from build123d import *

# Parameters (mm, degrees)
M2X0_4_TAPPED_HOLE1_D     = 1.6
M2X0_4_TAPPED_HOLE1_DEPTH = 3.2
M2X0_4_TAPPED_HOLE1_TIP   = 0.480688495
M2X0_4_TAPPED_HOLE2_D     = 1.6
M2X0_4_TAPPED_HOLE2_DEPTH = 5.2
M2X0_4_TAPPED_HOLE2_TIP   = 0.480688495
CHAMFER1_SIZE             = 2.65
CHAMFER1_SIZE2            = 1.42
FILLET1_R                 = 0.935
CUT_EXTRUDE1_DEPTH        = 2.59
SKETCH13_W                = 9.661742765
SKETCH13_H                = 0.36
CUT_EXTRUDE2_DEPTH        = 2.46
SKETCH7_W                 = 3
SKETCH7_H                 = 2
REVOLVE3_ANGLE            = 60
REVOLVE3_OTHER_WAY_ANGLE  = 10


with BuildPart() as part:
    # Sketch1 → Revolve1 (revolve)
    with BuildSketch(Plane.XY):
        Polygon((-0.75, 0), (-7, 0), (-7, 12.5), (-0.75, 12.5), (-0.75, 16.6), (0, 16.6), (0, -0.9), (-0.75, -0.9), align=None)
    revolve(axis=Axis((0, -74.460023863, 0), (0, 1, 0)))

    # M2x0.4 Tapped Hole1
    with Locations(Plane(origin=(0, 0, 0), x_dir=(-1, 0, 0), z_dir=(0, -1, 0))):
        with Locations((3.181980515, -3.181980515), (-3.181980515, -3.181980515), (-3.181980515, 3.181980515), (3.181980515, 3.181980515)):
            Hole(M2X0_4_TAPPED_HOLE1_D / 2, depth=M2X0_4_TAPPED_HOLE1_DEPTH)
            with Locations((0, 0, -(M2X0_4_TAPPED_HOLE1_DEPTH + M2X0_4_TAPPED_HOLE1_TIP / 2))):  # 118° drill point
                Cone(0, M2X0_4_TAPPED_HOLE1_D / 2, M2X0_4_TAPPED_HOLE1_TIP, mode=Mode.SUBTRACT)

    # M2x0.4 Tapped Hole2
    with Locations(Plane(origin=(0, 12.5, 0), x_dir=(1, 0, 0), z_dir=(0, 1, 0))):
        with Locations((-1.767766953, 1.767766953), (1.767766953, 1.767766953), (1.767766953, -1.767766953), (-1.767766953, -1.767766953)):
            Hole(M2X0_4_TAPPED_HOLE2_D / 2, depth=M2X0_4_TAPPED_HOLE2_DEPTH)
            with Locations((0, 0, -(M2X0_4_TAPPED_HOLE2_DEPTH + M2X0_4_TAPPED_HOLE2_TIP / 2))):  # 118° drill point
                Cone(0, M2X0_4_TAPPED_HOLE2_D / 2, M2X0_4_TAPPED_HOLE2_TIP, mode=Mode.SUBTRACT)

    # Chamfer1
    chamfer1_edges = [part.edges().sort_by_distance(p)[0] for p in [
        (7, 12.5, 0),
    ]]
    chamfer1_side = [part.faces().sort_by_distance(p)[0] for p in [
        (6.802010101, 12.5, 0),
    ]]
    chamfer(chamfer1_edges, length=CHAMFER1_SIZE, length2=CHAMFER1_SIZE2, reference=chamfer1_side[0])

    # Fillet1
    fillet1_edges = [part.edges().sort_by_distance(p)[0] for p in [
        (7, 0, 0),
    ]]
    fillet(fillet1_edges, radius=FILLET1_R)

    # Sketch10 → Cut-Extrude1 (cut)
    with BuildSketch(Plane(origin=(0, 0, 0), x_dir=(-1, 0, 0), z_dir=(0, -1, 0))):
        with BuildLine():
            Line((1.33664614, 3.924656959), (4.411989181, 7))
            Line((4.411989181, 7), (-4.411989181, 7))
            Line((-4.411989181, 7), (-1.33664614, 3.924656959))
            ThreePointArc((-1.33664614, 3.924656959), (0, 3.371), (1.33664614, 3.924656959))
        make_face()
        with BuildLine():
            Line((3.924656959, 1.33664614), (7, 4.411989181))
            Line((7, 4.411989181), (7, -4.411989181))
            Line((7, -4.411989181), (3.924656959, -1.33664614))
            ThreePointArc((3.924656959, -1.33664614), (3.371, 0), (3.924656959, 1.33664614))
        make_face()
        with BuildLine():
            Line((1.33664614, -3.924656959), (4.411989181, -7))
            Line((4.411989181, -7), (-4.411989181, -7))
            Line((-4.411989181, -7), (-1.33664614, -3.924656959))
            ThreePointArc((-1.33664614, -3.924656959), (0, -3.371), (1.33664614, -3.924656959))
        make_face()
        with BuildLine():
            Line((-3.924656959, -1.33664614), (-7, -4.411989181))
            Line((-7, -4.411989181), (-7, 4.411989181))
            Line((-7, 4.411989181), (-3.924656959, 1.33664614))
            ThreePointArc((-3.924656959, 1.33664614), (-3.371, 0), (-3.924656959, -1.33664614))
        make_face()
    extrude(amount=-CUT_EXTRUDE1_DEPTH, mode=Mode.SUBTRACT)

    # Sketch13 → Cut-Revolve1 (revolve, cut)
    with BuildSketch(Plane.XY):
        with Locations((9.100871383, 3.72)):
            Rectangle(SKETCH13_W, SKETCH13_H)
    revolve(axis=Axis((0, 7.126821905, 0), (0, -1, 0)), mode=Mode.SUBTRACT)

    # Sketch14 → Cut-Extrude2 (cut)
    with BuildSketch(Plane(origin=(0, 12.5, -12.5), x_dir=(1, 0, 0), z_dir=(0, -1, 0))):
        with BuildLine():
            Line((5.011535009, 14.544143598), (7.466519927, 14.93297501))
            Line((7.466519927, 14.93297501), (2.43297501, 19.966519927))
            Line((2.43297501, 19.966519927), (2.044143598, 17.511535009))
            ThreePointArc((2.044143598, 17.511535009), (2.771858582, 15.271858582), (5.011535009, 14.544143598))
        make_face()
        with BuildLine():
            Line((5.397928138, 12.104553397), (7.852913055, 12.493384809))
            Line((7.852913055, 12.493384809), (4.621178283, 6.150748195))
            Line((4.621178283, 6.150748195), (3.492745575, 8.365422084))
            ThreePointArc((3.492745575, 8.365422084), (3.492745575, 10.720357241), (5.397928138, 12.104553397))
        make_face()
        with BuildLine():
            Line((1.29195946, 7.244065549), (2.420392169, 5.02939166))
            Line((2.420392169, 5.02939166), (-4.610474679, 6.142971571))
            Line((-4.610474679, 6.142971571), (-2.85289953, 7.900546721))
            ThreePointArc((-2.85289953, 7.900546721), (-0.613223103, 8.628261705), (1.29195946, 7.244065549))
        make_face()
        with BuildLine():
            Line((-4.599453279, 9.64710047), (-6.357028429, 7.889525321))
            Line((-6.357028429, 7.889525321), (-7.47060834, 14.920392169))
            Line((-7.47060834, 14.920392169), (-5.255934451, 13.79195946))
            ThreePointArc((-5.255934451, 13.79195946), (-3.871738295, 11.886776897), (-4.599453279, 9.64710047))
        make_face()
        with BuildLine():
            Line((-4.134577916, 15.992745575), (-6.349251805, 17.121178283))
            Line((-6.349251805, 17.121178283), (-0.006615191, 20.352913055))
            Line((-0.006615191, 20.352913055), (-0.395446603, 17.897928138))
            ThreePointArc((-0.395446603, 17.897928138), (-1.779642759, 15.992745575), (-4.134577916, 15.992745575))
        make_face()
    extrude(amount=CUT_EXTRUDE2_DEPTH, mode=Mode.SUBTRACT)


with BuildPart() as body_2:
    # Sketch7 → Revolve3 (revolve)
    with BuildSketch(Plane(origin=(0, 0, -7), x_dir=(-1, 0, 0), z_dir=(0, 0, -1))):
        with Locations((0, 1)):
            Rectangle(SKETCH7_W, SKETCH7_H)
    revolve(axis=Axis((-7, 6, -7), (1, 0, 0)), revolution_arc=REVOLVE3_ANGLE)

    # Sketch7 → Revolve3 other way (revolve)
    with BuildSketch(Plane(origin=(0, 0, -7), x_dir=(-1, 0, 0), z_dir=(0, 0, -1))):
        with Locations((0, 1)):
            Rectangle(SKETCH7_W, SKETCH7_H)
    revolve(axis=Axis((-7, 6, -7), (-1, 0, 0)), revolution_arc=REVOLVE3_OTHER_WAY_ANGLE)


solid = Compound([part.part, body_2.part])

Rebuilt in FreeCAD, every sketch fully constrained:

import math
import FreeCAD as App
import Part
import Sketcher

V = App.Vector
Q = App.Units.Quantity


def edges_at(feature, points):
    """Names of the edges that pass closest to the given points."""
    edges = feature.Shape.Edges
    near = lambda p: min(range(len(edges)), key=lambda i: edges[i].distToShape(Part.Vertex(*p))[0])
    return sorted({f"Edge{near(p) + 1}" for p in points})


def add_polygon(sketch, points):
    """Adds a closed chain of lines whose ends are joined by coincident constraints."""
    first, n = sketch.GeometryCount, len(points)
    for a, b in zip(points, points[1:] + points[:1]):
        sketch.addGeometry(Part.LineSegment(App.Vector(*a, 0), App.Vector(*b, 0)), False)
    for i in range(n):
        sketch.addConstraint(Sketcher.Constraint("Coincident", first + i, 2, first + (i + 1) % n, 1))

doc = App.newDocument("Part")
body = doc.addObject("PartDesign::Body", "Body")

# Sketch on XY plane
sketch1 = body.newObject("Sketcher::SketchObject", "Sketch")
sketch1.AttachmentSupport = (doc.getObject("XY_Plane"), [""])
sketch1.MapMode = "FlatFace"
add_polygon(sketch1, [(-7, 0), (-0.8, 0), (-0.8, -0.9), (0, -0.9), (0, 16.6), (-0.8, 16.6), (-0.8, 12.5), (-7, 12.5)])  # lines 0-7
sketch1.addConstraint(Sketcher.Constraint("Horizontal", 0))
sketch1.addConstraint(Sketcher.Constraint("Vertical", 1))
sketch1.addConstraint(Sketcher.Constraint("Horizontal", 2))
sketch1.addConstraint(Sketcher.Constraint("Vertical", 3))
sketch1.addConstraint(Sketcher.Constraint("Horizontal", 4))
sketch1.addConstraint(Sketcher.Constraint("Vertical", 5))
sketch1.addConstraint(Sketcher.Constraint("Horizontal", 6))
sketch1.addConstraint(Sketcher.Constraint("Vertical", 7))
sketch1.addConstraint(Sketcher.Constraint("PointOnObject", 0, 2, -1))
sketch1.addConstraint(Sketcher.Constraint("PointOnObject", 2, 2, -2))
sketch1.addConstraint(Sketcher.Constraint("Vertical", 1, 2, 4, 2))
sketch1.addConstraint(Sketcher.Constraint("DistanceY", 1, 2, 1, 1, Q("0.9 mm")))
sketch1.addConstraint(Sketcher.Constraint("DistanceY", 3, 1, 3, 2, Q("17.5 mm")))
sketch1.addConstraint(Sketcher.Constraint("DistanceY", 5, 2, 5, 1, Q("4.1 mm")))
sketch1.addConstraint(Sketcher.Constraint("DistanceX", 6, 2, -1, 1, Q("7 mm")))
sketch1.addConstraint(Sketcher.Constraint("DistanceX", 0, 1, 0, 2, Q("6.25 mm")))
revolution = body.newObject("PartDesign::Revolution", "Revolution")
revolution.Profile = sketch1
revolution.ReferenceAxis = (sketch1, ["V_Axis"])
revolution.Angle = 360

# Sketch on XZ plane
sketch2 = body.newObject("Sketcher::SketchObject", "Sketch001")
sketch2.AttachmentSupport = (doc.getObject("XZ_Plane"), [""])
sketch2.MapMode = "FlatFace"
sketch2.addGeometry(Part.Circle(V(-3.2, 3.2, 0), V(0, 0, 1), 0.8), False)
sketch2.addGeometry(Part.Circle(V(3.2, 3.2, 0), V(0, 0, 1), 0.8), False)
sketch2.addGeometry(Part.Circle(V(3.2, -3.2, 0), V(0, 0, 1), 0.8), False)
sketch2.addGeometry(Part.Circle(V(-3.2, -3.2, 0), V(0, 0, 1), 0.8), False)
sketch2.addConstraint(Sketcher.Constraint("Equal", 0, 1))
sketch2.addConstraint(Sketcher.Constraint("Equal", 1, 2))
sketch2.addConstraint(Sketcher.Constraint("Equal", 2, 3))
sketch2.addConstraint(Sketcher.Constraint("Symmetric", 0, 3, 2, 3, -1, 1))
sketch2.addConstraint(Sketcher.Constraint("Symmetric", 1, 3, 3, 3, -1, 1))
sketch2.addConstraint(Sketcher.Constraint("Symmetric", 0, 3, 1, 3, -2))
sketch2.addConstraint(Sketcher.Constraint("Diameter", 0, Q("1.6 mm")))
sketch2.addConstraint(Sketcher.Constraint("DistanceX", 0, 3, -1, 1, Q("3.181981 mm")))
sketch2.addConstraint(Sketcher.Constraint("DistanceY", -1, 1, 0, 3, Q("3.181981 mm")))
doc.recompute()
hole = body.newObject("PartDesign::Hole", "Hole")
hole.Profile = sketch2
hole.ThreadType = "None"
hole.Diameter = 1.6
hole.DepthType = "Dimension"
hole.Depth = 3.2
hole.DrillPoint = "Angled"
hole.DrillPointAngle = 118

# Sketch on XZ plane
sketch3 = body.newObject("Sketcher::SketchObject", "Sketch002")
sketch3.AttachmentSupport = (doc.getObject("XZ_Plane"), [""])
sketch3.MapMode = "FlatFace"
sketch3.AttachmentOffset = App.Placement(V(0, 0, -12.5), App.Rotation())
sketch3.addGeometry(Part.Circle(V(-1.8, -1.8, 0), V(0, 0, 1), 0.8), False)
sketch3.addGeometry(Part.Circle(V(1.8, -1.8, 0), V(0, 0, 1), 0.8), False)
sketch3.addGeometry(Part.Circle(V(1.8, 1.8, 0), V(0, 0, 1), 0.8), False)
sketch3.addGeometry(Part.Circle(V(-1.8, 1.8, 0), V(0, 0, 1), 0.8), False)
sketch3.addConstraint(Sketcher.Constraint("Equal", 0, 1))
sketch3.addConstraint(Sketcher.Constraint("Equal", 1, 2))
sketch3.addConstraint(Sketcher.Constraint("Equal", 2, 3))
sketch3.addConstraint(Sketcher.Constraint("Symmetric", 0, 3, 2, 3, -1, 1))
sketch3.addConstraint(Sketcher.Constraint("Symmetric", 1, 3, 3, 3, -1, 1))
sketch3.addConstraint(Sketcher.Constraint("Symmetric", 0, 3, 1, 3, -2))
sketch3.addConstraint(Sketcher.Constraint("Diameter", 0, Q("1.6 mm")))
sketch3.addConstraint(Sketcher.Constraint("DistanceX", 0, 3, -1, 1, Q("1.767767 mm")))
sketch3.addConstraint(Sketcher.Constraint("DistanceY", 0, 3, -1, 1, Q("1.767767 mm")))
doc.recompute()
hole2 = body.newObject("PartDesign::Hole", "Hole001")
hole2.Profile = sketch3
hole2.ThreadType = "None"
hole2.Diameter = 1.6
hole2.DepthType = "Dimension"
hole2.Depth = 5.2
hole2.DrillPoint = "Angled"
hole2.DrillPointAngle = 118
hole2.Reversed = True
doc.recompute()

chamfer = body.newObject("PartDesign::Chamfer", "Chamfer")
chamfer.Base = (hole2, edges_at(hole2, [(7, 12.5, 0)]))
chamfer.ChamferType = "Two distances"
chamfer.Size = 2.65
chamfer.Size2 = 1.42
chamfer.FlipDirection = True
doc.recompute()

fillet = body.newObject("PartDesign::Fillet", "Fillet")
fillet.Base = (chamfer, edges_at(chamfer, [(7, 0, 0)]))
fillet.Radius = 0.935

# Sketch on XZ plane
sketch4 = body.newObject("Sketcher::SketchObject", "Sketch003")
sketch4.AttachmentSupport = (doc.getObject("XZ_Plane"), [""])
sketch4.MapMode = "FlatFace"
sketch4.addGeometry(Part.LineSegment(V(-1.3, -3.9, 0), V(-4.4, -7, 0)), False)
sketch4.addGeometry(Part.LineSegment(V(-4.4, -7, 0), V(4.4, -7, 0)), False)
sketch4.addGeometry(Part.LineSegment(V(4.4, -7, 0), V(1.3, -3.9, 0)), False)
sketch4.addGeometry(Part.ArcOfCircle(Part.Circle(V(0, -5.3, 0), V(0, 0, 1), 1.9), math.radians(45), math.radians(135)), False)
sketch4.addGeometry(Part.LineSegment(V(-7, -4.4, 0), V(-3.9, -1.3, 0)), False)
sketch4.addGeometry(Part.ArcOfCircle(Part.Circle(V(-5.3, 0, 0), V(0, 0, 1), 1.9), math.radians(-45), math.radians(45)), False)
sketch4.addGeometry(Part.LineSegment(V(-3.9, 1.3, 0), V(-7, 4.4, 0)), False)
sketch4.addGeometry(Part.LineSegment(V(-7, 4.4, 0), V(-7, -4.4, 0)), False)
sketch4.addGeometry(Part.LineSegment(V(-4.4, 7, 0), V(-1.3, 3.9, 0)), False)
sketch4.addGeometry(Part.ArcOfCircle(Part.Circle(V(0, 5.3, 0), V(0, 0, 1), 1.9), math.radians(-135), math.radians(-45)), False)
sketch4.addGeometry(Part.LineSegment(V(1.3, 3.9, 0), V(4.4, 7, 0)), False)
sketch4.addGeometry(Part.LineSegment(V(4.4, 7, 0), V(-4.4, 7, 0)), False)
sketch4.addGeometry(Part.LineSegment(V(7, 4.4, 0), V(3.9, 1.3, 0)), False)
sketch4.addGeometry(Part.ArcOfCircle(Part.Circle(V(5.3, 0, 0), V(0, 0, 1), 1.9), math.radians(135), math.radians(225)), False)
sketch4.addGeometry(Part.LineSegment(V(3.9, -1.3, 0), V(7, -4.4, 0)), False)
sketch4.addGeometry(Part.LineSegment(V(7, -4.4, 0), V(7, 4.4, 0)), False)
sketch4.addConstraint(Sketcher.Constraint("Coincident", 0, 2, 1, 1))
sketch4.addConstraint(Sketcher.Constraint("Coincident", 1, 2, 2, 1))
sketch4.addConstraint(Sketcher.Constraint("Tangent", 2, 2, 3, 1))
sketch4.addConstraint(Sketcher.Constraint("Tangent", 3, 2, 0, 1))
sketch4.addConstraint(Sketcher.Constraint("Tangent", 4, 2, 5, 1))
sketch4.addConstraint(Sketcher.Constraint("Tangent", 5, 2, 6, 1))
sketch4.addConstraint(Sketcher.Constraint("Coincident", 6, 2, 7, 1))
sketch4.addConstraint(Sketcher.Constraint("Coincident", 7, 2, 4, 1))
sketch4.addConstraint(Sketcher.Constraint("Tangent", 8, 2, 9, 1))
sketch4.addConstraint(Sketcher.Constraint("Tangent", 9, 2, 10, 1))
sketch4.addConstraint(Sketcher.Constraint("Coincident", 10, 2, 11, 1))
sketch4.addConstraint(Sketcher.Constraint("Coincident", 11, 2, 8, 1))
sketch4.addConstraint(Sketcher.Constraint("Tangent", 12, 2, 13, 1))
sketch4.addConstraint(Sketcher.Constraint("Tangent", 13, 2, 14, 1))
sketch4.addConstraint(Sketcher.Constraint("Coincident", 14, 2, 15, 1))
sketch4.addConstraint(Sketcher.Constraint("Coincident", 15, 2, 12, 1))
sketch4.addConstraint(Sketcher.Constraint("Horizontal", 1))
sketch4.addConstraint(Sketcher.Constraint("Vertical", 7))
sketch4.addConstraint(Sketcher.Constraint("Horizontal", 11))
sketch4.addConstraint(Sketcher.Constraint("Vertical", 15))
sketch4.addConstraint(Sketcher.Constraint("Equal", 3, 5))
sketch4.addConstraint(Sketcher.Constraint("Equal", 5, 9))
sketch4.addConstraint(Sketcher.Constraint("Equal", 9, 13))
sketch4.addConstraint(Sketcher.Constraint("Symmetric", 3, 3, 9, 3, -1, 1))
sketch4.addConstraint(Sketcher.Constraint("Symmetric", 5, 3, 13, 3, -1, 1))
sketch4.addConstraint(Sketcher.Constraint("Symmetric", 0, 2, 10, 2, -1, 1))
sketch4.addConstraint(Sketcher.Constraint("Symmetric", 6, 2, 14, 2, -1, 1))
sketch4.addConstraint(Sketcher.Constraint("Symmetric", 2, 2, 3, 2, -2))
sketch4.addConstraint(Sketcher.Constraint("Symmetric", 5, 2, 12, 2, -2))
sketch4.addConstraint(Sketcher.Constraint("Perpendicular", 0, 2))
sketch4.addConstraint(Sketcher.Constraint("Perpendicular", 2, 4))
sketch4.addConstraint(Sketcher.Constraint("Perpendicular", 4, 6))
sketch4.addConstraint(Sketcher.Constraint("Parallel", 6, 8))
sketch4.addConstraint(Sketcher.Constraint("Equal", 11, 7))
sketch4.addConstraint(Sketcher.Constraint("DistanceY", 0, 2, -1, 1, Q("7 mm")))
sketch4.addConstraint(Sketcher.Constraint("DistanceX", 6, 2, -1, 1, Q("7 mm")))
sketch4.addConstraint(Sketcher.Constraint("Radius", 3, Q("1.890303 mm")))
sketch4.addConstraint(Sketcher.Constraint("DistanceX", 1, 1, 1, 2, Q("8.823978 mm")))
pocket1 = body.newObject("PartDesign::Pocket", "Pocket")
pocket1.Profile = sketch4
pocket1.Length = 2.59

# Sketch on XY plane
sketch5 = body.newObject("Sketcher::SketchObject", "Sketch004")
sketch5.AttachmentSupport = (doc.getObject("XY_Plane"), [""])
sketch5.MapMode = "FlatFace"
add_polygon(sketch5, [(4.27, 3.9), (4.27, 3.54), (13.93, 3.54), (13.93, 3.9)])  # lines 0-3
sketch5.addConstraint(Sketcher.Constraint("Vertical", 0))
sketch5.addConstraint(Sketcher.Constraint("Horizontal", 1))
sketch5.addConstraint(Sketcher.Constraint("Vertical", 2))
sketch5.addConstraint(Sketcher.Constraint("Horizontal", 3))
sketch5.addConstraint(Sketcher.Constraint("DistanceY", 0, 2, 0, 1, Q("0.36 mm")))
sketch5.addConstraint(Sketcher.Constraint("DistanceY", -1, 1, 2, 2, Q("3.9 mm")))
sketch5.addConstraint(Sketcher.Constraint("DistanceX", -1, 1, 0, 2, Q("4.27 mm")))
sketch5.addConstraint(Sketcher.Constraint("DistanceX", 1, 1, 1, 2, Q("9.661743 mm")))
groove = body.newObject("PartDesign::Groove", "Groove")
groove.Profile = sketch5
groove.ReferenceAxis = (sketch5, ["V_Axis"])
groove.Angle = 360

# Sketch on XZ plane
sketch6 = body.newObject("Sketcher::SketchObject", "Sketch005")
sketch6.AttachmentSupport = (doc.getObject("XZ_Plane"), [""])
sketch6.MapMode = "FlatFace"
sketch6.AttachmentOffset = App.Placement(V(0, 0, -12.5), App.Rotation())
sketch6.addGeometry(Part.LineSegment(V(5, 2, 0), V(7.5, 2.4, 0)), False)
sketch6.addGeometry(Part.LineSegment(V(7.5, 2.4, 0), V(2.4, 7.5, 0)), False)
sketch6.addGeometry(Part.LineSegment(V(2.4, 7.5, 0), V(2, 5, 0)), False)
sketch6.addGeometry(Part.ArcOfCircle(Part.Circle(V(4.6, 4.6, 0), V(0, 0, 1), 2.6), math.radians(171), math.radians(279)), False)
sketch6.addGeometry(Part.LineSegment(V(7.9, 0, 0), V(5.4, -0.4, 0)), False)
sketch6.addGeometry(Part.ArcOfCircle(Part.Circle(V(5.8, -3, 0), V(0, 0, 1), 2.6), math.radians(99), math.radians(207)), False)
sketch6.addGeometry(Part.LineSegment(V(3.5, -4.1, 0), V(4.6, -6.3, 0)), False)
sketch6.addGeometry(Part.LineSegment(V(4.6, -6.3, 0), V(7.9, 0, 0)), False)
sketch6.addGeometry(Part.LineSegment(V(2.4, -7.5, 0), V(1.3, -5.3, 0)), False)
sketch6.addGeometry(Part.ArcOfCircle(Part.Circle(V(-1, -6.4, 0), V(0, 0, 1), 2.6), math.radians(27), math.radians(135)), False)
sketch6.addGeometry(Part.LineSegment(V(-2.9, -4.6, 0), V(-4.6, -6.4, 0)), False)
sketch6.addGeometry(Part.LineSegment(V(-4.6, -6.4, 0), V(2.4, -7.5, 0)), False)
sketch6.addGeometry(Part.LineSegment(V(-6.4, -4.6, 0), V(-4.6, -2.9, 0)), False)
sketch6.addGeometry(Part.ArcOfCircle(Part.Circle(V(-6.4, -1, 0), V(0, 0, 1), 2.6), math.radians(-45), math.radians(63)), False)
sketch6.addGeometry(Part.LineSegment(V(-5.3, 1.3, 0), V(-7.5, 2.4, 0)), False)
sketch6.addGeometry(Part.LineSegment(V(-7.5, 2.4, 0), V(-6.4, -4.6, 0)), False)
sketch6.addGeometry(Part.LineSegment(V(-6.3, 4.6, 0), V(-4.1, 3.5, 0)), False)
sketch6.addGeometry(Part.ArcOfCircle(Part.Circle(V(-3, 5.8, 0), V(0, 0, 1), 2.6), math.radians(-117), math.radians(-9)), False)
sketch6.addGeometry(Part.LineSegment(V(-0.4, 5.4, 0), V(0, 7.9, 0)), False)
sketch6.addGeometry(Part.LineSegment(V(0, 7.9, 0), V(-6.3, 4.6, 0)), False)
sketch6.addConstraint(Sketcher.Constraint("Coincident", 0, 2, 1, 1))
sketch6.addConstraint(Sketcher.Constraint("Coincident", 1, 2, 2, 1))
sketch6.addConstraint(Sketcher.Constraint("Tangent", 2, 2, 3, 1))
sketch6.addConstraint(Sketcher.Constraint("Tangent", 3, 2, 0, 1))
sketch6.addConstraint(Sketcher.Constraint("Tangent", 4, 2, 5, 1))
sketch6.addConstraint(Sketcher.Constraint("Tangent", 5, 2, 6, 1))
sketch6.addConstraint(Sketcher.Constraint("Coincident", 6, 2, 7, 1))
sketch6.addConstraint(Sketcher.Constraint("Coincident", 7, 2, 4, 1))
sketch6.addConstraint(Sketcher.Constraint("Tangent", 8, 2, 9, 1))
sketch6.addConstraint(Sketcher.Constraint("Tangent", 9, 2, 10, 1))
sketch6.addConstraint(Sketcher.Constraint("Coincident", 10, 2, 11, 1))
sketch6.addConstraint(Sketcher.Constraint("Coincident", 11, 2, 8, 1))
sketch6.addConstraint(Sketcher.Constraint("Tangent", 12, 2, 13, 1))
sketch6.addConstraint(Sketcher.Constraint("Tangent", 13, 2, 14, 1))
sketch6.addConstraint(Sketcher.Constraint("Coincident", 14, 2, 15, 1))
sketch6.addConstraint(Sketcher.Constraint("Coincident", 15, 2, 12, 1))
sketch6.addConstraint(Sketcher.Constraint("Tangent", 16, 2, 17, 1))
sketch6.addConstraint(Sketcher.Constraint("Tangent", 17, 2, 18, 1))
sketch6.addConstraint(Sketcher.Constraint("Coincident", 18, 2, 19, 1))
sketch6.addConstraint(Sketcher.Constraint("Coincident", 19, 2, 16, 1))
sketch6.addConstraint(Sketcher.Constraint("Equal", 3, 5))
sketch6.addConstraint(Sketcher.Constraint("Equal", 5, 9))
sketch6.addConstraint(Sketcher.Constraint("Equal", 9, 13))
sketch6.addConstraint(Sketcher.Constraint("Equal", 13, 17))
sketch6.addConstraint(Sketcher.Constraint("Parallel", 0, 4))
sketch6.addConstraint(Sketcher.Constraint("Parallel", 6, 8))
sketch6.addConstraint(Sketcher.Constraint("Perpendicular", 1, 10))
sketch6.addConstraint(Sketcher.Constraint("Perpendicular", 2, 11))
sketch6.addConstraint(Sketcher.Constraint("Parallel", 10, 12))
sketch6.addConstraint(Sketcher.Constraint("Perpendicular", 7, 14))
sketch6.addConstraint(Sketcher.Constraint("Perpendicular", 4, 15))
sketch6.addConstraint(Sketcher.Constraint("Parallel", 14, 16))
sketch6.addConstraint(Sketcher.Constraint("Perpendicular", 11, 18))
sketch6.addConstraint(Sketcher.Constraint("Perpendicular", 8, 19))
sketch6.addConstraint(Sketcher.Constraint("Equal", 0, 2))
sketch6.addConstraint(Sketcher.Constraint("Equal", 2, 4))
sketch6.addConstraint(Sketcher.Constraint("Equal", 4, 6))
sketch6.addConstraint(Sketcher.Constraint("Equal", 1, 7))
sketch6.addConstraint(Sketcher.Constraint("Equal", 6, 8))
sketch6.addConstraint(Sketcher.Constraint("Equal", 8, 10))
sketch6.addConstraint(Sketcher.Constraint("Equal", 10, 12))
sketch6.addConstraint(Sketcher.Constraint("Equal", 14, 16))
sketch6.addConstraint(Sketcher.Constraint("Angle", 0, Q("9 deg")))
sketch6.addConstraint(Sketcher.Constraint("Radius", 3, Q("2.593595 mm")))
sketch6.addConstraint(Sketcher.Constraint("DistanceX", 9, 2, -1, 1, Q("2.8529 mm")))
sketch6.addConstraint(Sketcher.Constraint("DistanceY", 12, 2, -1, 1, Q("2.8529 mm")))
sketch6.addConstraint(Sketcher.Constraint("DistanceY", 6, 2, 9, 2, Q("1.749799 mm")))
sketch6.addConstraint(Sketcher.Constraint("DistanceY", 11, 2, 5, 3, Q("4.513498 mm")))
sketch6.addConstraint(Sketcher.Constraint("DistanceX", 14, 2, 17, 3, Q("4.513498 mm")))
sketch6.addConstraint(Sketcher.Constraint("DistanceY", 5, 3, -1, 1, Q("2.95711 mm")))
sketch6.addConstraint(Sketcher.Constraint("DistanceX", 17, 3, -1, 1, Q("2.95711 mm")))
sketch6.addConstraint(Sketcher.Constraint("DistanceX", -1, 1, 0, 2, Q("7.46652 mm")))
sketch6.addConstraint(Sketcher.Constraint("DistanceY", -1, 1, 1, 2, Q("7.46652 mm")))
sketch6.addConstraint(Sketcher.Constraint("DistanceX", -1, 1, 4, 2, Q("5.397928 mm")))
sketch6.addConstraint(Sketcher.Constraint("DistanceY", -1, 1, 17, 2, Q("5.397928 mm")))
pocket2 = body.newObject("PartDesign::Pocket", "Pocket001")
pocket2.Profile = sketch6
pocket2.Length = 2.46
pocket2.Reversed = True
body2 = doc.addObject("PartDesign::Body", "Body001")

# Sketch on XY plane
sketch7 = body2.newObject("Sketcher::SketchObject", "Sketch006")
sketch7.AttachmentSupport = (doc.getObject("XY_Plane001"), [""])
sketch7.MapMode = "FlatFace"
sketch7.AttachmentOffset = App.Placement(V(0, 0, -7), App.Rotation())
add_polygon(sketch7, [(1.5, 2), (1.5, 0), (-1.5, 0), (-1.5, 2)])  # lines 0-3
sketch7.addGeometry(Part.LineSegment(V(-1.5, 6, 0), V(1.5, 6, 0)), True)  # axis
sketch7.addConstraint(Sketcher.Constraint("Vertical", 0))
sketch7.addConstraint(Sketcher.Constraint("Horizontal", 1))
sketch7.addConstraint(Sketcher.Constraint("Vertical", 2))
sketch7.addConstraint(Sketcher.Constraint("Horizontal", 3))
sketch7.addConstraint(Sketcher.Constraint("Horizontal", 4))
sketch7.addConstraint(Sketcher.Constraint("Symmetric", 0, 2, 1, 2, -1, 1))
sketch7.addConstraint(Sketcher.Constraint("Vertical", 2, 2, 4, 1))
sketch7.addConstraint(Sketcher.Constraint("Vertical", 3, 2, 4, 2))
sketch7.addConstraint(Sketcher.Constraint("DistanceX", 1, 2, 1, 1, Q("3 mm")))
sketch7.addConstraint(Sketcher.Constraint("DistanceY", 0, 2, 0, 1, Q("2 mm")))
sketch7.addConstraint(Sketcher.Constraint("DistanceY", -1, 1, 4, 1, Q("6 mm")))
revolution2 = body2.newObject("PartDesign::Revolution", "Revolution001")
revolution2.Profile = sketch7
revolution2.ReferenceAxis = (sketch7, ["Axis0"])
revolution2.Angle = 60

# Sketch on XY plane
sketch8 = body2.newObject("Sketcher::SketchObject", "Sketch007")
sketch8.AttachmentSupport = (doc.getObject("XY_Plane001"), [""])
sketch8.MapMode = "FlatFace"
sketch8.AttachmentOffset = App.Placement(V(0, 0, -7), App.Rotation())
add_polygon(sketch8, [(1.5, 2), (1.5, 0), (-1.5, 0), (-1.5, 2)])  # lines 0-3
sketch8.addGeometry(Part.LineSegment(V(1.5, 6, 0), V(-1.5, 6, 0)), True)  # axis
sketch8.addConstraint(Sketcher.Constraint("Vertical", 0))
sketch8.addConstraint(Sketcher.Constraint("Horizontal", 1))
sketch8.addConstraint(Sketcher.Constraint("Vertical", 2))
sketch8.addConstraint(Sketcher.Constraint("Horizontal", 3))
sketch8.addConstraint(Sketcher.Constraint("Horizontal", 4))
sketch8.addConstraint(Sketcher.Constraint("Symmetric", 0, 2, 1, 2, -1, 1))
sketch8.addConstraint(Sketcher.Constraint("Vertical", 3, 2, 4, 1))
sketch8.addConstraint(Sketcher.Constraint("Vertical", 2, 2, 4, 2))
sketch8.addConstraint(Sketcher.Constraint("DistanceX", 1, 2, 1, 1, Q("3 mm")))
sketch8.addConstraint(Sketcher.Constraint("DistanceY", 0, 2, 0, 1, Q("2 mm")))
sketch8.addConstraint(Sketcher.Constraint("DistanceY", -1, 1, 4, 1, Q("6 mm")))
revolution3 = body2.newObject("PartDesign::Revolution", "Revolution002")
revolution3.Profile = sketch8
revolution3.ReferenceAxis = (sketch8, ["Axis0"])
revolution3.Angle = 10

doc.recompute()
